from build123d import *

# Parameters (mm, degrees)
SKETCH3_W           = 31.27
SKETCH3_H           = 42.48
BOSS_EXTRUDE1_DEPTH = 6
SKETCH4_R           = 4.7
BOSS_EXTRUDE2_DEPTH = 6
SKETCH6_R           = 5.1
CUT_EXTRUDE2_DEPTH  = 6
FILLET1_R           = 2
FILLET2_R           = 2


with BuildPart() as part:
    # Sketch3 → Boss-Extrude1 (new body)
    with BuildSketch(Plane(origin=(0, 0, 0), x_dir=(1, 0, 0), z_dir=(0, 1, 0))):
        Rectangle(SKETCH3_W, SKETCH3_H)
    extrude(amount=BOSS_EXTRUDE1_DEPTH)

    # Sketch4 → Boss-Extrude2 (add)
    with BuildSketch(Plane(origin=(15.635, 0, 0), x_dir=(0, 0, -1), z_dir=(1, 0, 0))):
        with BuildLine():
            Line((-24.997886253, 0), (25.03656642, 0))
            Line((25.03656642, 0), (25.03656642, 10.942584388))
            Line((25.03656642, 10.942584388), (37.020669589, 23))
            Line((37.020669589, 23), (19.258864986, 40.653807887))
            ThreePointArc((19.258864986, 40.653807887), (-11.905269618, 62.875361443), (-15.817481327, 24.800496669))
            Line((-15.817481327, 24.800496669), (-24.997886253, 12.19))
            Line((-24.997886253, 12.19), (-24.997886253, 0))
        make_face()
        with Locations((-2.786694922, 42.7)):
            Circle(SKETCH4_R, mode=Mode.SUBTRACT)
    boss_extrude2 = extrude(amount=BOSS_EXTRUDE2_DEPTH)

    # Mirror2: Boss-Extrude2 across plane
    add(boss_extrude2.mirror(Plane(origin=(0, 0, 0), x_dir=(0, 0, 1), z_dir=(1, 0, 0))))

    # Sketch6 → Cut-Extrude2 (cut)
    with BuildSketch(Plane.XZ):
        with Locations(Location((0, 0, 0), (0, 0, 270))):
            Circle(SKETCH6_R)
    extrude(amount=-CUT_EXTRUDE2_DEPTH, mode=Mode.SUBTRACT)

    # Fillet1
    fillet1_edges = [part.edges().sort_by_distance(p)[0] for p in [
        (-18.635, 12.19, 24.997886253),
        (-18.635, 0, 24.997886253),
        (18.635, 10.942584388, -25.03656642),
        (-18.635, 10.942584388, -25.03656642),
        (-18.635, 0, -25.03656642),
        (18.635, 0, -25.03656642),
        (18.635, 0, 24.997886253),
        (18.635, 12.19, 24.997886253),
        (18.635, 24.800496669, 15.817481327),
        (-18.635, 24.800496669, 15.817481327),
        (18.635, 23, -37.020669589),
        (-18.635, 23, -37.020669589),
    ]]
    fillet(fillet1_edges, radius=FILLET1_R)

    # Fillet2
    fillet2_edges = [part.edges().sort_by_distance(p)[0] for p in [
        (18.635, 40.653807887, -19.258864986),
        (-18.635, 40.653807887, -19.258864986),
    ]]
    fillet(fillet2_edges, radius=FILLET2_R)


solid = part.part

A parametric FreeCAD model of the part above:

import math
import FreeCAD as App
import Part
import Sketcher

V = App.Vector
Q = App.Units.Quantity


def edges_at(feature, points):
    """Names of the edges that pass closest to the given points."""
    edges = feature.Shape.Edges
    near = lambda p: min(range(len(edges)), key=lambda i: edges[i].distToShape(Part.Vertex(*p))[0])
    return sorted({f"Edge{near(p) + 1}" for p in points})

doc = App.newDocument("Part")
body = doc.addObject("PartDesign::Body", "Body")

sketch1 = body.newObject("Sketcher::SketchObject", "Sketch")
sketch1.AttachmentSupport = (doc.getObject("XZ_Plane"), [""])
sketch1.MapMode = "FlatFace"
sketch1.addGeometry(Part.LineSegment(V(-16, -21, 0), V(-16, 21, 0)), False)
sketch1.addGeometry(Part.LineSegment(V(-16, 21, 0), V(16, 21, 0)), False)
sketch1.addGeometry(Part.LineSegment(V(16, 21, 0), V(16, -21, 0)), False)
sketch1.addGeometry(Part.LineSegment(V(16, -21, 0), V(-16, -21, 0)), False)
sketch1.addConstraint(Sketcher.Constraint("Coincident", 0, 2, 1, 1))
sketch1.addConstraint(Sketcher.Constraint("Coincident", 1, 2, 2, 1))
sketch1.addConstraint(Sketcher.Constraint("Coincident", 2, 2, 3, 1))
sketch1.addConstraint(Sketcher.Constraint("Coincident", 3, 2, 0, 1))
sketch1.addConstraint(Sketcher.Constraint("Vertical", 0))
sketch1.addConstraint(Sketcher.Constraint("Horizontal", 1))
sketch1.addConstraint(Sketcher.Constraint("Vertical", 2))
sketch1.addConstraint(Sketcher.Constraint("Horizontal", 3))
sketch1.addConstraint(Sketcher.Constraint("Symmetric", 0, 2, 2, 2, -1, 1))
sketch1.addConstraint(Sketcher.Constraint("DistanceX", 1, 1, 1, 2, Q("31.27 mm")))
sketch1.addConstraint(Sketcher.Constraint("DistanceY", 0, 1, 0, 2, Q("42.48 mm")))
pad1 = body.newObject("PartDesign::Pad", "Pad")
pad1.Profile = sketch1
pad1.Length = 6
pad1.Reversed = True

sketch2 = body.newObject("Sketcher::SketchObject", "Sketch001")
sketch2.AttachmentSupport = (doc.getObject("YZ_Plane"), [""])
sketch2.MapMode = "FlatFace"
sketch2.AttachmentOffset = App.Placement(V(0, 0, 15.635), App.Rotation())
sketch2.addGeometry(Part.LineSegment(V(0, 25, 0), V(0, -25, 0)), False)
sketch2.addGeometry(Part.LineSegment(V(0, -25, 0), V(10.9, -25, 0)), False)
sketch2.addGeometry(Part.LineSegment(V(10.9, -25, 0), V(23, -37, 0)), False)
sketch2.addGeometry(Part.LineSegment(V(23, -37, 0), V(40.7, -19.3, 0)), False)
sketch2.addGeometry(Part.ArcOfCircle(Part.Circle(V(42.7, 2.8, 0), V(0, 0, 1), 22.1), math.radians(-95), math.radians(144)), False)
sketch2.addGeometry(Part.LineSegment(V(24.8, 15.8, 0), V(12.2, 25, 0)), False)
sketch2.addGeometry(Part.LineSegment(V(12.2, 25, 0), V(0, 25, 0)), False)
sketch2.addGeometry(Part.Circle(V(42.7, 2.8, 0), V(0, 0, 1), 4.7), False)
sketch2.addConstraint(Sketcher.Constraint("Coincident", 0, 2, 1, 1))
sketch2.addConstraint(Sketcher.Constraint("Coincident", 1, 2, 2, 1))
sketch2.addConstraint(Sketcher.Constraint("Coincident", 2, 2, 3, 1))
sketch2.addConstraint(Sketcher.Constraint("Coincident", 3, 2, 4, 1))
sketch2.addConstraint(Sketcher.Constraint("Coincident", 4, 2, 5, 1))
sketch2.addConstraint(Sketcher.Constraint("Coincident", 5, 2, 6, 1))
sketch2.addConstraint(Sketcher.Constraint("Coincident", 6, 2, 0, 1))
sketch2.addConstraint(Sketcher.Constraint("Vertical", 0))
sketch2.addConstraint(Sketcher.Constraint("Horizontal", 1))
sketch2.addConstraint(Sketcher.Constraint("Horizontal", 6))
sketch2.addConstraint(Sketcher.Constraint("Coincident", 7, 3, 4, 3))
sketch2.addConstraint(Sketcher.Constraint("PointOnObject", 0, 2, -2))
sketch2.addConstraint(Sketcher.Constraint("Perpendicular", 2, 3))
sketch2.addConstraint(Sketcher.Constraint("Diameter", 7, Q("9.4 mm")))
sketch2.addConstraint(Sketcher.Constraint("Distance", 2, Q("17 mm")))
sketch2.addConstraint(Sketcher.Constraint("DistanceX", -1, 1, 2, 2, Q("23 mm")))
sketch2.addConstraint(Sketcher.Constraint("DistanceX", 6, 2, 6, 1, Q("12.19 mm")))
sketch2.addConstraint(Sketcher.Constraint("DistanceX", -1, 1, 4, 3, Q("42.7 mm")))
sketch2.addConstraint(Sketcher.Constraint("Radius", 4, Q("22.140316 mm")))
sketch2.addConstraint(Sketcher.Constraint("DistanceY", 1, 2, 3, 2, Q("5.777701 mm")))
sketch2.addConstraint(Sketcher.Constraint("Distance", 5, Q("15.59822 mm")))
sketch2.addConstraint(Sketcher.Constraint("DistanceX", 1, 1, 1, 2, Q("10.942584 mm")))
sketch2.addConstraint(Sketcher.Constraint("DistanceY", 2, 2, -1, 1, Q("37.02067 mm")))
sketch2.addConstraint(Sketcher.Constraint("DistanceY", -1, 1, 4, 2, Q("15.817481 mm")))
pad2 = body.newObject("PartDesign::Pad", "Pad001")
pad2.Profile = sketch2
pad2.Length = 6
doc.recompute()

mirrored = body.newObject("PartDesign::Mirrored", "Mirrored")
mirrored.Originals = [pad2]
mirrored.MirrorPlane = (doc.getObject("YZ_Plane"), [""])
body.Tip = mirrored

sketch3 = body.newObject("Sketcher::SketchObject", "Sketch002")
sketch3.AttachmentSupport = (doc.getObject("XZ_Plane"), [""])
sketch3.MapMode = "FlatFace"
sketch3.addGeometry(Part.Circle(V(0, 0, 0), V(0, 0, 1), 5), False)
sketch3.addConstraint(Sketcher.Constraint("Coincident", 0, 3, -1, 1))
sketch3.addConstraint(Sketcher.Constraint("Diameter", 0, Q("10.2 mm")))
pocket1 = body.newObject("PartDesign::Pocket", "Pocket")
pocket1.Profile = sketch3
pocket1.Length = 6
doc.recompute()

fillet = body.newObject("PartDesign::Fillet", "Fillet")
fillet.Base = (pocket1, edges_at(pocket1, [
    (-18.635, 12.19, 24.998),
    (-18.635, 0, 24.998),
    (18.635, 10.943, -25.037),
    (-18.635, 10.943, -25.037),
    (-18.635, 0, -25.037),
    (18.635, 0, -25.037),
    (18.635, 0, 24.998),
    (18.635, 12.19, 24.998),
    (18.635, 24.8, 15.817),
    (-18.635, 24.8, 15.817),
    (18.635, 23, -37.021),
    (-18.635, 23, -37.021),
]))
fillet.Radius = 2
doc.recompute()

fillet2 = body.newObject("PartDesign::Fillet", "Fillet001")
fillet2.Base = (fillet, edges_at(fillet, [(18.635, 40.654, -19.259), (-18.635, 40.654, -19.259)]))
fillet2.Radius = 2

doc.recompute()
